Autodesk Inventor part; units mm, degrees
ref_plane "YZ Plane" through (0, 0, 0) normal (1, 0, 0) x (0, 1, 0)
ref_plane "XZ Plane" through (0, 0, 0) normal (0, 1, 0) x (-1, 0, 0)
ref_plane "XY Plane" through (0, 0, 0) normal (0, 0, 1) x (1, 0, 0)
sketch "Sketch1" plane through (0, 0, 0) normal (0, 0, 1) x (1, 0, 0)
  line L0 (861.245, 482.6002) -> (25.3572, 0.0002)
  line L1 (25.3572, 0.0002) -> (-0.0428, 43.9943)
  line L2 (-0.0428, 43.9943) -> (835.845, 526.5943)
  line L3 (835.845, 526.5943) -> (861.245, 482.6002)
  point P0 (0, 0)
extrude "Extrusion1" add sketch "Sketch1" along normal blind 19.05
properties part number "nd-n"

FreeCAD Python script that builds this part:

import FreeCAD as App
import Part
import Sketcher

V = App.Vector
Q = App.Units.Quantity


def add_polygon(sketch, points):
    """Adds a closed chain of lines whose ends are joined by coincident constraints."""
    first, n = sketch.GeometryCount, len(points)
    for a, b in zip(points, points[1:] + points[:1]):
        sketch.addGeometry(Part.LineSegment(App.Vector(*a, 0), App.Vector(*b, 0)), False)
    for i in range(n):
        sketch.addConstraint(Sketcher.Constraint("Coincident", first + i, 2, first + (i + 1) % n, 1))

doc = App.newDocument("Part")
body = doc.addObject("PartDesign::Body", "Body")

sketch1 = body.newObject("Sketcher::SketchObject", "Sketch")
sketch1.AttachmentSupport = (doc.getObject("XY_Plane"), [""])
sketch1.MapMode = "FlatFace"
add_polygon(sketch1, [(25.3572, 0.0002), (861.245, 482.6002), (835.845, 526.5943), (-0.0428, 43.9943)])
sketch1.addConstraint(Sketcher.Constraint("Perpendicular", 0, 1))
sketch1.addConstraint(Sketcher.Constraint("Perpendicular", 1, 2))
sketch1.addConstraint(Sketcher.Constraint("Perpendicular", 2, 3))
sketch1.addConstraint(Sketcher.Constraint("Distance", 0, Q("38 in")))
sketch1.addConstraint(Sketcher.Constraint("Distance", 1, Q("2 in")))
sketch1.addConstraint(Sketcher.Constraint("DistanceY", -1, 1, 0, 2, Q("19 in")))
sketch1.addConstraint(Sketcher.Constraint("DistanceY", -1, 1, 3, 2, Q("0 in")))
sketch1.addConstraint(Sketcher.Constraint("DistanceX", -1, 1, 0, 2, 861.245))
pad1 = body.newObject("PartDesign::Pad", "Pad")
pad1.Profile = sketch1
pad1.Length = Q("0.75 in")

doc.recompute()
